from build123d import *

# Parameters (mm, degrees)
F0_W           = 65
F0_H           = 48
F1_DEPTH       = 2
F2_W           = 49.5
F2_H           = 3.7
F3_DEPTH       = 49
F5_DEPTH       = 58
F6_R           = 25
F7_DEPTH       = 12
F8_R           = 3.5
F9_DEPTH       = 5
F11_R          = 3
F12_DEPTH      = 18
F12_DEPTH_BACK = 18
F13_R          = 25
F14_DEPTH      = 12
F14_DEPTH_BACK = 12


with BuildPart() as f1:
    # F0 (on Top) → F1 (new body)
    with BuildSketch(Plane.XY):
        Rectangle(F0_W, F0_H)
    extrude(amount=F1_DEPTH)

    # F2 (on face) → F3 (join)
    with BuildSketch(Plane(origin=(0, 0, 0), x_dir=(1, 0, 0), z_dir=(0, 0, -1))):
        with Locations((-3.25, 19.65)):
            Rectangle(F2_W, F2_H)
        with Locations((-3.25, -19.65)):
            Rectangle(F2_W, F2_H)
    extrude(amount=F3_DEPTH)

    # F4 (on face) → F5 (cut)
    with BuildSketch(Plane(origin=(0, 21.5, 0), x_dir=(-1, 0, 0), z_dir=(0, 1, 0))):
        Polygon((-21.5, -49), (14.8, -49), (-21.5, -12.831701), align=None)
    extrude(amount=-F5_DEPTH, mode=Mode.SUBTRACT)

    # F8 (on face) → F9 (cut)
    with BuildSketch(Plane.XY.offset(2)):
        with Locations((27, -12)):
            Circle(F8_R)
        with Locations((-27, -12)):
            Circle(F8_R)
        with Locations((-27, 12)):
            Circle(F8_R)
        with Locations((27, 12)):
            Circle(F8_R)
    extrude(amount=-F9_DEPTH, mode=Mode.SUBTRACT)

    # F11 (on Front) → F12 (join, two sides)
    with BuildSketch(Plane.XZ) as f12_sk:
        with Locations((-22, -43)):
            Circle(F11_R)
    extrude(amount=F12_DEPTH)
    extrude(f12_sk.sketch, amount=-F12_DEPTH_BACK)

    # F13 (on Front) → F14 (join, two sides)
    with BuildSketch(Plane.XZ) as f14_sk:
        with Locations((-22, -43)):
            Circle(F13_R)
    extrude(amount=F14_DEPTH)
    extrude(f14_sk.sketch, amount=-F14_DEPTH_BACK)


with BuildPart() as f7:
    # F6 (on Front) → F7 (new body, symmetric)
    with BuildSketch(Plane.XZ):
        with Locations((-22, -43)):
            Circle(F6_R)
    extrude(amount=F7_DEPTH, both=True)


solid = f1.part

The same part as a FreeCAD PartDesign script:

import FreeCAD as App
import Part
import Sketcher

V = App.Vector
Q = App.Units.Quantity

doc = App.newDocument("Part")
body = doc.addObject("PartDesign::Body", "Body")

sketch1 = body.newObject("Sketcher::SketchObject", "Sketch")
sketch1.AttachmentSupport = (doc.getObject("XY_Plane"), [""])
sketch1.MapMode = "FlatFace"
sketch1.addGeometry(Part.LineSegment(V(-32, 24, 0), V(-32, -24, 0)), False)
sketch1.addGeometry(Part.LineSegment(V(-32, -24, 0), V(32, -24, 0)), False)
sketch1.addGeometry(Part.LineSegment(V(32, -24, 0), V(32, 24, 0)), False)
sketch1.addGeometry(Part.LineSegment(V(32, 24, 0), V(-32, 24, 0)), False)
sketch1.addConstraint(Sketcher.Constraint("Coincident", 0, 2, 1, 1))
sketch1.addConstraint(Sketcher.Constraint("Coincident", 1, 2, 2, 1))
sketch1.addConstraint(Sketcher.Constraint("Coincident", 2, 2, 3, 1))
sketch1.addConstraint(Sketcher.Constraint("Coincident", 3, 2, 0, 1))
sketch1.addConstraint(Sketcher.Constraint("Vertical", 0))
sketch1.addConstraint(Sketcher.Constraint("Horizontal", 1))
sketch1.addConstraint(Sketcher.Constraint("Vertical", 2))
sketch1.addConstraint(Sketcher.Constraint("Horizontal", 3))
sketch1.addConstraint(Sketcher.Constraint("Symmetric", 0, 2, 2, 2, -1, 1))
sketch1.addConstraint(Sketcher.Constraint("DistanceX", 1, 1, 1, 2, Q("65 mm")))
sketch1.addConstraint(Sketcher.Constraint("DistanceY", 0, 2, 0, 1, Q("48 mm")))
pad1 = body.newObject("PartDesign::Pad", "Pad")
pad1.Profile = sketch1
pad1.Length = 2

sketch2 = body.newObject("Sketcher::SketchObject", "Sketch001")
sketch2.AttachmentSupport = (doc.getObject("XY_Plane"), [""])
sketch2.MapMode = "FlatFace"
sketch2.addGeometry(Part.LineSegment(V(-28, -21.5, 0), V(-28, -17.8, 0)), False)
sketch2.addGeometry(Part.LineSegment(V(-28, -17.8, 0), V(21.5, -17.8, 0)), False)
sketch2.addGeometry(Part.LineSegment(V(21.5, -17.8, 0), V(21.5, -21.5, 0)), False)
sketch2.addGeometry(Part.LineSegment(V(21.5, -21.5, 0), V(-28, -21.5, 0)), False)
sketch2.addGeometry(Part.LineSegment(V(-28, 17.8, 0), V(-28, 21.5, 0)), False)
sketch2.addGeometry(Part.LineSegment(V(-28, 21.5, 0), V(21.5, 21.5, 0)), False)
sketch2.addGeometry(Part.LineSegment(V(21.5, 21.5, 0), V(21.5, 17.8, 0)), False)
sketch2.addGeometry(Part.LineSegment(V(21.5, 17.8, 0), V(-28, 17.8, 0)), False)
sketch2.addConstraint(Sketcher.Constraint("Coincident", 0, 2, 1, 1))
sketch2.addConstraint(Sketcher.Constraint("Coincident", 1, 2, 2, 1))
sketch2.addConstraint(Sketcher.Constraint("Coincident", 2, 2, 3, 1))
sketch2.addConstraint(Sketcher.Constraint("Coincident", 3, 2, 0, 1))
sketch2.addConstraint(Sketcher.Constraint("Coincident", 4, 2, 5, 1))
sketch2.addConstraint(Sketcher.Constraint("Coincident", 5, 2, 6, 1))
sketch2.addConstraint(Sketcher.Constraint("Coincident", 6, 2, 7, 1))
sketch2.addConstraint(Sketcher.Constraint("Coincident", 7, 2, 4, 1))
sketch2.addConstraint(Sketcher.Constraint("Vertical", 0))
sketch2.addConstraint(Sketcher.Constraint("Horizontal", 1))
sketch2.addConstraint(Sketcher.Constraint("Vertical", 2))
sketch2.addConstraint(Sketcher.Constraint("Horizontal", 3))
sketch2.addConstraint(Sketcher.Constraint("Vertical", 4))
sketch2.addConstraint(Sketcher.Constraint("Horizontal", 5))
sketch2.addConstraint(Sketcher.Constraint("Vertical", 6))
sketch2.addConstraint(Sketcher.Constraint("Horizontal", 7))
sketch2.addConstraint(Sketcher.Constraint("Symmetric", 3, 2, 4, 2, -1))
sketch2.addConstraint(Sketcher.Constraint("Symmetric", 1, 2, 6, 2, -1))
sketch2.addConstraint(Sketcher.Constraint("DistanceX", 1, 1, 1, 2, Q("49.5 mm")))
sketch2.addConstraint(Sketcher.Constraint("DistanceY", 0, 1, 0, 2, Q("3.7 mm")))
sketch2.addConstraint(Sketcher.Constraint("DistanceX", 0, 2, -1, 1, Q("28 mm")))
sketch2.addConstraint(Sketcher.Constraint("DistanceY", 3, 2, 4, 2, Q("43 mm")))
pad2 = body.newObject("PartDesign::Pad", "Pad001")
pad2.Profile = sketch2
pad2.Length = 49
pad2.Reversed = True

sketch3 = body.newObject("Sketcher::SketchObject", "Sketch002")
sketch3.AttachmentSupport = (doc.getObject("XZ_Plane"), [""])
sketch3.MapMode = "FlatFace"
sketch3.AttachmentOffset = App.Placement(V(0, 0, -21.5), App.Rotation())
sketch3.addGeometry(Part.LineSegment(V(22, -49, 0), V(-15, -49, 0)), False)
sketch3.addGeometry(Part.LineSegment(V(-15, -49, 0), V(22, -13, 0)), False)
sketch3.addGeometry(Part.LineSegment(V(22, -13, 0), V(22, -49, 0)), False)
sketch3.addConstraint(Sketcher.Constraint("Coincident", 0, 2, 1, 1))
sketch3.addConstraint(Sketcher.Constraint("Coincident", 1, 2, 2, 1))
sketch3.addConstraint(Sketcher.Constraint("Coincident", 2, 2, 0, 1))
sketch3.addConstraint(Sketcher.Constraint("Horizontal", 0))
sketch3.addConstraint(Sketcher.Constraint("Vertical", 2))
sketch3.addConstraint(Sketcher.Constraint("DistanceX", 0, 2, 0, 1, Q("36.3 mm")))
sketch3.addConstraint(Sketcher.Constraint("DistanceY", 0, 2, -1, 1, Q("49 mm")))
sketch3.addConstraint(Sketcher.Constraint("DistanceX", 0, 2, -1, 1, Q("14.8 mm")))
sketch3.addConstraint(Sketcher.Constraint("DistanceY", 2, 2, 2, 1, Q("36.168299 mm")))
pocket1 = body.newObject("PartDesign::Pocket", "Pocket")
pocket1.Profile = sketch3
pocket1.Length = 58
pocket1.Reversed = True

sketch4 = body.newObject("Sketcher::SketchObject", "Sketch003")
sketch4.AttachmentSupport = (doc.getObject("XY_Plane"), [""])
sketch4.MapMode = "FlatFace"
sketch4.AttachmentOffset = App.Placement(V(0, 0, 2), App.Rotation())
sketch4.addGeometry(Part.Circle(V(27, -12, 0), V(0, 0, 1), 3.5), False)
sketch4.addGeometry(Part.Circle(V(-27, -12, 0), V(0, 0, 1), 3.5), False)
sketch4.addGeometry(Part.Circle(V(-27, 12, 0), V(0, 0, 1), 3.5), False)
sketch4.addGeometry(Part.Circle(V(27, 12, 0), V(0, 0, 1), 3.5), False)
sketch4.addConstraint(Sketcher.Constraint("Equal", 0, 1))
sketch4.addConstraint(Sketcher.Constraint("Equal", 1, 2))
sketch4.addConstraint(Sketcher.Constraint("Equal", 2, 3))
sketch4.addConstraint(Sketcher.Constraint("Symmetric", 0, 3, 2, 3, -1, 1))
sketch4.addConstraint(Sketcher.Constraint("Symmetric", 1, 3, 3, 3, -1, 1))
sketch4.addConstraint(Sketcher.Constraint("Symmetric", 0, 3, 1, 3, -2))
sketch4.addConstraint(Sketcher.Constraint("Diameter", 0, Q("7 mm")))
sketch4.addConstraint(Sketcher.Constraint("DistanceX", -1, 1, 0, 3, Q("27 mm")))
sketch4.addConstraint(Sketcher.Constraint("DistanceY", 0, 3, -1, 1, Q("12 mm")))
pocket2 = body.newObject("PartDesign::Pocket", "Pocket001")
pocket2.Profile = sketch4
pocket2.Length = 5

sketch5 = body.newObject("Sketcher::SketchObject", "Sketch004")
sketch5.AttachmentSupport = (doc.getObject("XZ_Plane"), [""])
sketch5.MapMode = "FlatFace"
sketch5.addGeometry(Part.Circle(V(-22, -43, 0), V(0, 0, 1), 3), False)
sketch5.addConstraint(Sketcher.Constraint("Diameter", 0, Q("6 mm")))
sketch5.addConstraint(Sketcher.Constraint("DistanceX", 0, 3, -1, 1, Q("22 mm")))
sketch5.addConstraint(Sketcher.Constraint("DistanceY", 0, 3, -1, 1, Q("43 mm")))
pad3 = body.newObject("PartDesign::Pad", "Pad002")
pad3.Profile = sketch5
pad3.Type = "TwoLengths"
pad3.Length = 18
pad3.Length2 = 18

sketch6 = body.newObject("Sketcher::SketchObject", "Sketch005")
sketch6.AttachmentSupport = (doc.getObject("XZ_Plane"), [""])
sketch6.MapMode = "FlatFace"
sketch6.addGeometry(Part.Circle(V(-22, -43, 0), V(0, 0, 1), 25), False)
sketch6.addConstraint(Sketcher.Constraint("Diameter", 0, Q("50 mm")))
sketch6.addConstraint(Sketcher.Constraint("DistanceX", 0, 3, -1, 1, Q("22 mm")))
sketch6.addConstraint(Sketcher.Constraint("DistanceY", 0, 3, -1, 1, Q("43 mm")))
pad4 = body.newObject("PartDesign::Pad", "Pad003")
pad4.Profile = sketch6
pad4.Type = "TwoLengths"
pad4.Length = 12
pad4.Length2 = 12
body2 = doc.addObject("PartDesign::Body", "Body001")

sketch7 = body2.newObject("Sketcher::SketchObject", "Sketch006")
sketch7.AttachmentSupport = (doc.getObject("XZ_Plane001"), [""])
sketch7.MapMode = "FlatFace"
sketch7.addGeometry(Part.Circle(V(-22, -43, 0), V(0, 0, 1), 25), False)
sketch7.addConstraint(Sketcher.Constraint("Diameter", 0, Q("50 mm")))
sketch7.addConstraint(Sketcher.Constraint("DistanceX", 0, 3, -1, 1, Q("22 mm")))
sketch7.addConstraint(Sketcher.Constraint("DistanceY", 0, 3, -1, 1, Q("43 mm")))
pad5 = body2.newObject("PartDesign::Pad", "Pad004")
pad5.Profile = sketch7
pad5.Length = 24
pad5.Midplane = True
body2.Visibility = False

doc.recompute()
